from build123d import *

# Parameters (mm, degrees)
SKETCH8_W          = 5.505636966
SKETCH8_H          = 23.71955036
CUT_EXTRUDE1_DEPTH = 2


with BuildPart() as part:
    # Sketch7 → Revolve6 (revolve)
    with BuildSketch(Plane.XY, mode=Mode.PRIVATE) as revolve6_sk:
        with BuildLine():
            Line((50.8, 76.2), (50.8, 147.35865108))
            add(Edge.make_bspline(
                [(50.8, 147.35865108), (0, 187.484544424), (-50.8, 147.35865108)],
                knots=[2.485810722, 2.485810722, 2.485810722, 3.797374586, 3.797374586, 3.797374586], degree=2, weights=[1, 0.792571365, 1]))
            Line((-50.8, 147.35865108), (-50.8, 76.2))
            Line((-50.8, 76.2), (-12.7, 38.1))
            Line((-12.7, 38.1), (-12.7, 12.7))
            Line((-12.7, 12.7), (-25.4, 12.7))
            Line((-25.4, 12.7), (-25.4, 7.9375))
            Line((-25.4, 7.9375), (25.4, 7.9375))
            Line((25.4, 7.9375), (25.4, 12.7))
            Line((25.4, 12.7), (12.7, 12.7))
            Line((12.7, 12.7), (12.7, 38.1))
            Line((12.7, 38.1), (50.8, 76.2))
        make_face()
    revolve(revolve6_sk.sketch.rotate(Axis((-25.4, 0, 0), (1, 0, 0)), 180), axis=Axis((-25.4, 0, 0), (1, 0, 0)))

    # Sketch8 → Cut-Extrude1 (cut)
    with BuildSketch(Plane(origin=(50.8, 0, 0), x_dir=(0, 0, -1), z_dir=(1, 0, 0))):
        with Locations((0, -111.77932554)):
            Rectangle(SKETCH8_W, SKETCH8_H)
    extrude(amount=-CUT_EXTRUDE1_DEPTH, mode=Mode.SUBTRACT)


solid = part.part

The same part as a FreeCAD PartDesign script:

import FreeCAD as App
import Part
import Sketcher
Q = App.Units.Quantity

doc = App.newDocument("Part")
params = doc.addObject("Spreadsheet::Sheet", "Params")
for row, (alias, value) in enumerate([
    ("sketch1_width", "2 in"),
    ("sketch1_height", "1 in"),
    ("sketch1_width2", "0.5 in"),
    ("sketch1_height2", "0.1875 in"),
    ("revolution_angle", "360 deg"),
    ("pocket1_length", "2 mm"),
], start=1):
    params.set(f"A{row}", alias)
    params.set(f"B{row}", "=" + value)
    params.setAlias(f"B{row}", alias)

body = doc.addObject("PartDesign::Body", "Body")

# Sketch on XY plane
sketch1 = body.newObject("Sketcher::SketchObject", "Sketch")
sketch1.AttachmentSupport = (doc.getObject("XY_Plane"), [""])
sketch1.MapMode = "FlatFace"
sketch1.addGeometry([
    Part.LineSegment(App.Vector(50.8, 76.2, 0), App.Vector(50.8, 147.358651, 0)),  # 0
    Part.BSplineCurve([App.Vector(50.8, 147.358651, 0), App.Vector(0, 187.484544, 0), App.Vector(-50.8, 147.358651, 0)], [3, 3], [2.485810722, 3.797374586], False, 2, [1, 0.792571365, 1], False),  # 1
    Part.LineSegment(App.Vector(-50.8, 147.358651, 0), App.Vector(-50.8, 76.2, 0)),  # 2
    Part.LineSegment(App.Vector(-50.8, 76.2, 0), App.Vector(-12.7, 38.1, 0)),  # 3
    Part.LineSegment(App.Vector(-12.7, 38.1, 0), App.Vector(-12.7, 12.7, 0)),  # 4
    Part.LineSegment(App.Vector(-12.7, 12.7, 0), App.Vector(-25.4, 12.7, 0)),  # 5
    Part.LineSegment(App.Vector(-25.4, 12.7, 0), App.Vector(-25.4, 7.9375, 0)),  # 6
    Part.LineSegment(App.Vector(-25.4, 7.9375, 0), App.Vector(25.4, 7.9375, 0)),  # 7
    Part.LineSegment(App.Vector(25.4, 7.9375, 0), App.Vector(25.4, 12.7, 0)),  # 8
    Part.LineSegment(App.Vector(25.4, 12.7, 0), App.Vector(12.7, 12.7, 0)),  # 9
    Part.LineSegment(App.Vector(12.7, 12.7, 0), App.Vector(12.7, 38.1, 0)),  # 10
    Part.LineSegment(App.Vector(12.7, 38.1, 0), App.Vector(50.8, 76.2, 0)),  # 11
], False)
sketch1.addConstraint([
    Sketcher.Constraint("Block", 1),
    Sketcher.Constraint("Coincident", 0, 2, 1, 1),
    Sketcher.Constraint("Coincident", 1, 2, 2, 1),
    Sketcher.Constraint("Coincident", 2, 2, 3, 1),
    Sketcher.Constraint("Coincident", 3, 2, 4, 1),
    Sketcher.Constraint("Coincident", 4, 2, 5, 1),
    Sketcher.Constraint("Coincident", 5, 2, 6, 1),
    Sketcher.Constraint("Coincident", 6, 2, 7, 1),
    Sketcher.Constraint("Coincident", 7, 2, 8, 1),
    Sketcher.Constraint("Coincident", 8, 2, 9, 1),
    Sketcher.Constraint("Coincident", 9, 2, 10, 1),
    Sketcher.Constraint("Coincident", 10, 2, 11, 1),
    Sketcher.Constraint("Coincident", 11, 2, 0, 1),
    Sketcher.Constraint("Vertical", 0),
    Sketcher.Constraint("Vertical", 2),
    Sketcher.Constraint("Vertical", 4),
    Sketcher.Constraint("Horizontal", 5),
    Sketcher.Constraint("Vertical", 6),
    Sketcher.Constraint("Horizontal", 7),
    Sketcher.Constraint("Vertical", 8),
    Sketcher.Constraint("Horizontal", 9),
    Sketcher.Constraint("Vertical", 10),
    Sketcher.Constraint("Symmetric", 5, 2, 8, 2, -2),
    Sketcher.Constraint("Symmetric", 3, 2, 10, 2, -2),
    Sketcher.Constraint("Perpendicular", 3, 11),
    Sketcher.Constraint("Horizontal", 2, 2, 11, 2),
    Sketcher.Constraint("DistanceX", 7, 1, 7, 2, Q("2 in")),
    Sketcher.Constraint("DistanceY", 4, 2, 4, 1, Q("1 in")),
    Sketcher.Constraint("DistanceX", 5, 2, 5, 1, Q("0.5 in")),
    Sketcher.Constraint("DistanceY", -1, 1, 2, 2, Q("3 in")),
    Sketcher.Constraint("DistanceY", 6, 2, 6, 1, Q("0.1875 in")),
])
sketch1.setExpression("Constraints[26]", "Params.sketch1_width")
sketch1.setExpression("Constraints[27]", "Params.sketch1_height")
sketch1.setExpression("Constraints[28]", "Params.sketch1_width2")
sketch1.setExpression("Constraints[30]", "Params.sketch1_height2")
revolution = body.newObject("PartDesign::Revolution", "Revolution")
revolution.Profile = sketch1
revolution.ReferenceAxis = (sketch1, ["H_Axis"])
revolution.setExpression("Angle", "Params.revolution_angle")

# Sketch on YZ plane
sketch2 = body.newObject("Sketcher::SketchObject", "Sketch001")
sketch2.AttachmentSupport = (doc.getObject("YZ_Plane"), [""])
sketch2.MapMode = "FlatFace"
sketch2.AttachmentOffset = App.Placement(App.Vector(0, 0, 2 * 25.4), App.Rotation())
sketch2.addGeometry([
    Part.LineSegment(App.Vector(-100, 3, 0), App.Vector(-124, 3, 0)),
    Part.LineSegment(App.Vector(-124, 3, 0), App.Vector(-124, -3, 0)),
    Part.LineSegment(App.Vector(-124, -3, 0), App.Vector(-100, -3, 0)),
    Part.LineSegment(App.Vector(-100, -3, 0), App.Vector(-100, 3, 0)),
], False)
sketch2.addConstraint([
    Sketcher.Constraint("Coincident", 0, 2, 1, 1),
    Sketcher.Constraint("Coincident", 1, 2, 2, 1),
    Sketcher.Constraint("Coincident", 2, 2, 3, 1),
    Sketcher.Constraint("Coincident", 3, 2, 0, 1),
    Sketcher.Constraint("Horizontal", 0),
    Sketcher.Constraint("Vertical", 1),
    Sketcher.Constraint("Horizontal", 2),
    Sketcher.Constraint("Vertical", 3),
    Sketcher.Constraint("DistanceX", 0, 2, 0, 1, Q("23.71955 mm")),
    Sketcher.Constraint("DistanceX", 0, 2, -1, 1, Q("123.639101 mm")),
    Sketcher.Constraint("DistanceY", 1, 2, 1, 1, Q("5.505637 mm")),
    Sketcher.Constraint("DistanceY", -1, 1, 0, 2, Q("2.752818 mm")),
])
pocket1 = body.newObject("PartDesign::Pocket", "Pocket")
pocket1.Profile = sketch2
pocket1.setExpression("Length", "Params.pocket1_length")

doc.recompute()
